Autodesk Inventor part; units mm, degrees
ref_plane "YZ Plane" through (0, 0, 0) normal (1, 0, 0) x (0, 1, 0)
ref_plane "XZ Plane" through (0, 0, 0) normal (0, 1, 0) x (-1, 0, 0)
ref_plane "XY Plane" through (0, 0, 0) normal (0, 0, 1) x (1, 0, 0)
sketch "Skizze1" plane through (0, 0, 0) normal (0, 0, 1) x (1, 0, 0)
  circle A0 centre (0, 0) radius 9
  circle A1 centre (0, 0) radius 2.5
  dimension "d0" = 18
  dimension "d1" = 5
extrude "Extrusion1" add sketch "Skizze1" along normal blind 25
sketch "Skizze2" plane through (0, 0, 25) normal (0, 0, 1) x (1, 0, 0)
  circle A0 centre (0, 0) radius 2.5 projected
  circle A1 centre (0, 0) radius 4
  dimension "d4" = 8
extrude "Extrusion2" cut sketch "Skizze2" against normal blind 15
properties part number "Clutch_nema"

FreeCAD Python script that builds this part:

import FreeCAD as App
import Part
import Sketcher
from FreeCAD import Vector
Q = App.Units.Quantity

doc = App.newDocument("Part")
body = doc.addObject("PartDesign::Body", "Body")

# Sketch on XY plane
sketch1 = body.newObject("Sketcher::SketchObject", "Sketch")
sketch1.AttachmentSupport = (doc.getObject("XY_Plane"), [""])
sketch1.MapMode = "FlatFace"
sketch1.addGeometry([
    Part.Circle(Vector(0, 0, 0), Vector(0, 0, 1), 9),
    Part.Circle(Vector(0, 0, 0), Vector(0, 0, 1), 2.5),
], False)
sketch1.addConstraint([
    Sketcher.Constraint("Coincident", 0, 3, -1, 1),
    Sketcher.Constraint("Coincident", 1, 3, -1, 1),
    Sketcher.Constraint("Diameter", 0, Q("18 mm")),
    Sketcher.Constraint("Diameter", 1, Q("5 mm")),
])
pad1 = body.newObject("PartDesign::Pad", "Pad")
pad1.Profile = sketch1
pad1.Length = 25

# Sketch on XY plane
sketch2 = body.newObject("Sketcher::SketchObject", "Sketch001")
sketch2.AttachmentSupport = (doc.getObject("XY_Plane"), [""])
sketch2.MapMode = "FlatFace"
sketch2.AttachmentOffset = App.Placement(Vector(0, 0, 25), App.Rotation())
sketch2.addGeometry([
    Part.Circle(Vector(0, 0, 0), Vector(0, 0, 1), 4),
    Part.Circle(Vector(0, 0, 0), Vector(0, 0, 1), 2.5),
], False)
sketch2.addConstraint([
    Sketcher.Constraint("Coincident", 0, 3, -1, 1),
    Sketcher.Constraint("Coincident", 1, 3, -1, 1),
    Sketcher.Constraint("Diameter", 0, Q("8 mm")),
    Sketcher.Constraint("Diameter", 1, Q("5 mm")),
])
pocket1 = body.newObject("PartDesign::Pocket", "Pocket")
pocket1.Profile = sketch2
pocket1.Length = 15

doc.recompute()
